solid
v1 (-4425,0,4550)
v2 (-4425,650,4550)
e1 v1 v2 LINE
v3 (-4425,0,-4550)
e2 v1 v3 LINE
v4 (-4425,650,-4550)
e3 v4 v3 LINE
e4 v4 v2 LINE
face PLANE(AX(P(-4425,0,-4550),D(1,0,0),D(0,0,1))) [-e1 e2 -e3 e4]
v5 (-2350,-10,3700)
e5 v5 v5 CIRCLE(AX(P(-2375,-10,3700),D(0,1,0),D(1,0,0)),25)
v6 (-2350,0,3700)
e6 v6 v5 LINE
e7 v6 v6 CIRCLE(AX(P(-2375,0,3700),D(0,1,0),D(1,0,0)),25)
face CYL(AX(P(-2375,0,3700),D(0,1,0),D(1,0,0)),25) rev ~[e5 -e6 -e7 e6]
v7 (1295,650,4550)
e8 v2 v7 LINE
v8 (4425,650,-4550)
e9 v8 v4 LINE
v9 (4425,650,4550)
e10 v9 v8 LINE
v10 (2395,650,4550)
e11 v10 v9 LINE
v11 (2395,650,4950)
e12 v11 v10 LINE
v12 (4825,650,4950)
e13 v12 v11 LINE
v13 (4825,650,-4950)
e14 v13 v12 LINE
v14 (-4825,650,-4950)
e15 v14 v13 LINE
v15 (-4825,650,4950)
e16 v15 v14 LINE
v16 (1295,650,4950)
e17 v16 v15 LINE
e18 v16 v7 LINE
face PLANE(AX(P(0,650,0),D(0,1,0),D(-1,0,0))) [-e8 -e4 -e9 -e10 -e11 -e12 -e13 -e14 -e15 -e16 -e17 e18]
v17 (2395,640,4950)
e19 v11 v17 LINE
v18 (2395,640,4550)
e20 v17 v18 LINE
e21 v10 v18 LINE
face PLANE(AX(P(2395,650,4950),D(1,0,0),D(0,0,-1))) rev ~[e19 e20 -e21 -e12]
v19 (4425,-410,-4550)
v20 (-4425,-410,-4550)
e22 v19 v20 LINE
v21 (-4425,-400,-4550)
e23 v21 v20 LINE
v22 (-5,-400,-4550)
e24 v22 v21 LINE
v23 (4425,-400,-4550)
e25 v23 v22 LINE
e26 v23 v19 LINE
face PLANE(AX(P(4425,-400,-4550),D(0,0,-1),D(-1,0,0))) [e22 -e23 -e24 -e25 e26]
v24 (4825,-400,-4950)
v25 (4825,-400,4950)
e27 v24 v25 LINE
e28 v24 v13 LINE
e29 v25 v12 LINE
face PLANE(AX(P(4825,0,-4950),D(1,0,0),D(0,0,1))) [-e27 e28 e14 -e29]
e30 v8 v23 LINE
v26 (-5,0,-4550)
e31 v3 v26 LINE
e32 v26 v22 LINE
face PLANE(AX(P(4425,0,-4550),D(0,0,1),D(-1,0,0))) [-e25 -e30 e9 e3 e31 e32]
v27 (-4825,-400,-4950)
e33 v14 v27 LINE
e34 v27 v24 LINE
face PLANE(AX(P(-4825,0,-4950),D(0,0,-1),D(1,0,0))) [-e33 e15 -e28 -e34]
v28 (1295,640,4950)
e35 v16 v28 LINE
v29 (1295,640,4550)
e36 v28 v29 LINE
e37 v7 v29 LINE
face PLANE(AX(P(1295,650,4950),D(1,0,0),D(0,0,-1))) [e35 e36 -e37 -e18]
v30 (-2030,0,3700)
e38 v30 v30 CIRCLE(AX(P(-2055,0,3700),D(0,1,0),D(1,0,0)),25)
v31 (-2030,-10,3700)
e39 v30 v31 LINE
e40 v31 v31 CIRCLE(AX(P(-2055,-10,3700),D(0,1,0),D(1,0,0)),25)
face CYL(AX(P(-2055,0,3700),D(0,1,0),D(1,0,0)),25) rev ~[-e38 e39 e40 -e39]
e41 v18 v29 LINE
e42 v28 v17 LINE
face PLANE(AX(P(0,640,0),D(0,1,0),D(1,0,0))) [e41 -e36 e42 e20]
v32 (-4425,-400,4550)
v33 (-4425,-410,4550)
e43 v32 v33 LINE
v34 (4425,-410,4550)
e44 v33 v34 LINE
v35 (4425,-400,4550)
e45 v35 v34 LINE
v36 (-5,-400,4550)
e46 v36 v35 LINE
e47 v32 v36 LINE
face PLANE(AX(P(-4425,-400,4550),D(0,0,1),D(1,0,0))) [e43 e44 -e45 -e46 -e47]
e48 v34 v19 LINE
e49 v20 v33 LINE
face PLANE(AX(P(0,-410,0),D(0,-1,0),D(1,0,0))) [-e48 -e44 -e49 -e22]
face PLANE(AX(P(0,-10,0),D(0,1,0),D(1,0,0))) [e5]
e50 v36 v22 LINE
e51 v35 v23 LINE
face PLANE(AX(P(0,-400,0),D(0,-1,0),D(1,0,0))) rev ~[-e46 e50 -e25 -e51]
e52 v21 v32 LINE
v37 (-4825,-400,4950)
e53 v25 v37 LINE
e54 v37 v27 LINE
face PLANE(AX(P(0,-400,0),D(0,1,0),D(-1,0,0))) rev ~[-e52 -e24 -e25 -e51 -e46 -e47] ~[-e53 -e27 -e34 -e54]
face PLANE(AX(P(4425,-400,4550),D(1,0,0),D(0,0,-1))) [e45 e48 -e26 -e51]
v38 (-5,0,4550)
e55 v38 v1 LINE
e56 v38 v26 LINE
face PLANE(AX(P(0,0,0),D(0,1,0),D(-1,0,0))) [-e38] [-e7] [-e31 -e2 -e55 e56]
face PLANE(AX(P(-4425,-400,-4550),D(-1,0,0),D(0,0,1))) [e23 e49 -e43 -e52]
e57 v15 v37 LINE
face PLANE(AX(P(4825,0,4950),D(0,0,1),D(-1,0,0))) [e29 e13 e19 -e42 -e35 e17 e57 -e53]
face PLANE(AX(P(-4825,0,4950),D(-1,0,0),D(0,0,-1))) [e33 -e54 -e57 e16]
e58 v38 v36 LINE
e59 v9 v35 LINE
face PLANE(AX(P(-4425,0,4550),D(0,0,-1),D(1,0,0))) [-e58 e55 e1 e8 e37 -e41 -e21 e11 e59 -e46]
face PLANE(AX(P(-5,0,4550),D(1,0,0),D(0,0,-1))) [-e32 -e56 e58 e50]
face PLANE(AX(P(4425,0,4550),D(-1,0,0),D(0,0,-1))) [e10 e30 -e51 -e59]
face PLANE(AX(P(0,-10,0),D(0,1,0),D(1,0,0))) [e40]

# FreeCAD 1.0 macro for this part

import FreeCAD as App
import Part
import Sketcher
Q = App.Units.Quantity


def add_polygon(sketch, points):
    """Adds a closed chain of lines whose ends are joined by coincident constraints."""
    first, n = sketch.GeometryCount, len(points)
    for a, b in zip(points, points[1:] + points[:1]):
        sketch.addGeometry(Part.LineSegment(App.Vector(*a, 0), App.Vector(*b, 0)), False)
    for i in range(n):
        sketch.addConstraint(Sketcher.Constraint("Coincident", first + i, 2, first + (i + 1) % n, 1))

doc = App.newDocument("Part")
body = doc.addObject("PartDesign::Body", "Body")
body.AllowCompound = True

sketch1 = body.newObject("Sketcher::SketchObject", "Sketch")
sketch1.AttachmentSupport = (doc.getObject("XZ_Plane"), [""])
sketch1.MapMode = "FlatFace"
add_polygon(sketch1, [(-4825, 4950), (4825, 4950), (4825, -4950), (-4825, -4950)])
add_polygon(sketch1, [(4425, 4550), (-4425, 4550), (-4425, -4550), (4425, -4550)])
sketch1.addConstraint([
    Sketcher.Constraint("Horizontal", 0),
    Sketcher.Constraint("Vertical", 1),
    Sketcher.Constraint("Horizontal", 2),
    Sketcher.Constraint("Vertical", 3),
    Sketcher.Constraint("Horizontal", 4),
    Sketcher.Constraint("Vertical", 5),
    Sketcher.Constraint("Horizontal", 6),
    Sketcher.Constraint("Vertical", 7),
    Sketcher.Constraint("Symmetric", 0, 2, 2, 2, -1, 1),
    Sketcher.Constraint("Symmetric", 4, 2, 6, 2, -1, 1),
    Sketcher.Constraint("DistanceX", 4, 2, 4, 1, Q("8850 mm")),
    Sketcher.Constraint("DistanceY", 5, 2, 5, 1, Q("9100 mm")),
    Sketcher.Constraint("DistanceX", 3, 2, 4, 2, Q("400 mm")),
    Sketcher.Constraint("DistanceY", 4, 2, 3, 2, Q("400 mm")),
])
pad1 = body.newObject("PartDesign::Pad", "Pad")
pad1.Profile = sketch1
pad1.Type = "TwoLengths"
pad1.Length = 650
pad1.Length2 = 400
pad1.Reversed = True

sketch2 = body.newObject("Sketcher::SketchObject", "Sketch001")
sketch2.AttachmentSupport = (doc.getObject("XZ_Plane"), [""])
sketch2.MapMode = "FlatFace"
sketch2.AttachmentOffset = App.Placement(App.Vector(0, 0, 400), App.Rotation())
add_polygon(sketch2, [(-4425, 4550), (-4425, -4550), (4425, -4550), (4425, 4550)])
sketch2.addConstraint([
    Sketcher.Constraint("Vertical", 0),
    Sketcher.Constraint("Horizontal", 1),
    Sketcher.Constraint("Vertical", 2),
    Sketcher.Constraint("Horizontal", 3),
    Sketcher.Constraint("Symmetric", 0, 2, 2, 2, -1, 1),
    Sketcher.Constraint("DistanceX", 1, 1, 1, 2, Q("8850 mm")),
    Sketcher.Constraint("DistanceY", 0, 2, 0, 1, Q("9100 mm")),
])
pad2 = body.newObject("PartDesign::Pad", "Pad001")
pad2.Profile = sketch2
pad2.Length = 10

sketch3 = body.newObject("Sketcher::SketchObject", "Sketch002")
sketch3.AttachmentSupport = (doc.getObject("XZ_Plane"), [""])
sketch3.MapMode = "FlatFace"
add_polygon(sketch3, [(-4425, -4550), (-4425, 4550), (-5, 4550), (-5, -4550)])
sketch3.addConstraint([
    Sketcher.Constraint("Vertical", 0),
    Sketcher.Constraint("Horizontal", 1),
    Sketcher.Constraint("Vertical", 2),
    Sketcher.Constraint("Horizontal", 3),
    Sketcher.Constraint("DistanceX", 1, 1, 1, 2, Q("4420 mm")),
    Sketcher.Constraint("DistanceY", 0, 1, 0, 2, Q("9100 mm")),
    Sketcher.Constraint("DistanceX", 0, 2, -1, 1, Q("4425 mm")),
    Sketcher.Constraint("DistanceY", -1, 1, 0, 2, Q("4550 mm")),
])
pad3 = body.newObject("PartDesign::Pad", "Pad002")
pad3.Profile = sketch3
pad3.Length = 400

sketch4 = body.newObject("Sketcher::SketchObject", "Sketch003")
sketch4.AttachmentSupport = (doc.getObject("XZ_Plane"), [""])
sketch4.MapMode = "FlatFace"
sketch4.AttachmentOffset = App.Placement(App.Vector(0, 0, -650), App.Rotation())
add_polygon(sketch4, [(1295, 4950), (2395, 4950), (2395, 4550), (1295, 4550)])
sketch4.addConstraint([
    Sketcher.Constraint("Horizontal", 0),
    Sketcher.Constraint("Vertical", 1),
    Sketcher.Constraint("Horizontal", 2),
    Sketcher.Constraint("Vertical", 3),
    Sketcher.Constraint("DistanceX", 0, 1, 0, 2, Q("1100 mm")),
    Sketcher.Constraint("DistanceY", 1, 2, 1, 1, Q("400 mm")),
    Sketcher.Constraint("DistanceX", -1, 1, 0, 2, Q("2395 mm")),
    Sketcher.Constraint("DistanceY", -1, 1, 0, 2, Q("4950 mm")),
])
pocket1 = body.newObject("PartDesign::Pocket", "Pocket")
pocket1.Profile = sketch4
pocket1.Length = 10
pocket1.Reversed = True

sketch5 = body.newObject("Sketcher::SketchObject", "Sketch004")
sketch5.AttachmentSupport = (doc.getObject("XZ_Plane"), [""])
sketch5.MapMode = "FlatFace"
sketch5.addGeometry([
    Part.Circle(App.Vector(-2375, 3700, 0), App.Vector(0, 0, 1), 25),
    Part.Circle(App.Vector(-2055, 3700, 0), App.Vector(0, 0, 1), 25),
], False)
sketch5.addConstraint([
    Sketcher.Constraint("Equal", 0, 1),
    Sketcher.Constraint("Horizontal", 0, 3, 1, 3),
    Sketcher.Constraint("Diameter", 0, Q("50 mm")),
    Sketcher.Constraint("DistanceX", 0, 3, -1, 1, Q("2375 mm")),
    Sketcher.Constraint("DistanceY", -1, 1, 0, 3, Q("3700 mm")),
    Sketcher.Constraint("DistanceX", 1, 3, -1, 1, Q("2055 mm")),
])
pocket2 = body.newObject("PartDesign::Pocket", "Pocket001")
pocket2.Profile = sketch5
pocket2.Length = 10
pocket2.Reversed = True

doc.recompute()
